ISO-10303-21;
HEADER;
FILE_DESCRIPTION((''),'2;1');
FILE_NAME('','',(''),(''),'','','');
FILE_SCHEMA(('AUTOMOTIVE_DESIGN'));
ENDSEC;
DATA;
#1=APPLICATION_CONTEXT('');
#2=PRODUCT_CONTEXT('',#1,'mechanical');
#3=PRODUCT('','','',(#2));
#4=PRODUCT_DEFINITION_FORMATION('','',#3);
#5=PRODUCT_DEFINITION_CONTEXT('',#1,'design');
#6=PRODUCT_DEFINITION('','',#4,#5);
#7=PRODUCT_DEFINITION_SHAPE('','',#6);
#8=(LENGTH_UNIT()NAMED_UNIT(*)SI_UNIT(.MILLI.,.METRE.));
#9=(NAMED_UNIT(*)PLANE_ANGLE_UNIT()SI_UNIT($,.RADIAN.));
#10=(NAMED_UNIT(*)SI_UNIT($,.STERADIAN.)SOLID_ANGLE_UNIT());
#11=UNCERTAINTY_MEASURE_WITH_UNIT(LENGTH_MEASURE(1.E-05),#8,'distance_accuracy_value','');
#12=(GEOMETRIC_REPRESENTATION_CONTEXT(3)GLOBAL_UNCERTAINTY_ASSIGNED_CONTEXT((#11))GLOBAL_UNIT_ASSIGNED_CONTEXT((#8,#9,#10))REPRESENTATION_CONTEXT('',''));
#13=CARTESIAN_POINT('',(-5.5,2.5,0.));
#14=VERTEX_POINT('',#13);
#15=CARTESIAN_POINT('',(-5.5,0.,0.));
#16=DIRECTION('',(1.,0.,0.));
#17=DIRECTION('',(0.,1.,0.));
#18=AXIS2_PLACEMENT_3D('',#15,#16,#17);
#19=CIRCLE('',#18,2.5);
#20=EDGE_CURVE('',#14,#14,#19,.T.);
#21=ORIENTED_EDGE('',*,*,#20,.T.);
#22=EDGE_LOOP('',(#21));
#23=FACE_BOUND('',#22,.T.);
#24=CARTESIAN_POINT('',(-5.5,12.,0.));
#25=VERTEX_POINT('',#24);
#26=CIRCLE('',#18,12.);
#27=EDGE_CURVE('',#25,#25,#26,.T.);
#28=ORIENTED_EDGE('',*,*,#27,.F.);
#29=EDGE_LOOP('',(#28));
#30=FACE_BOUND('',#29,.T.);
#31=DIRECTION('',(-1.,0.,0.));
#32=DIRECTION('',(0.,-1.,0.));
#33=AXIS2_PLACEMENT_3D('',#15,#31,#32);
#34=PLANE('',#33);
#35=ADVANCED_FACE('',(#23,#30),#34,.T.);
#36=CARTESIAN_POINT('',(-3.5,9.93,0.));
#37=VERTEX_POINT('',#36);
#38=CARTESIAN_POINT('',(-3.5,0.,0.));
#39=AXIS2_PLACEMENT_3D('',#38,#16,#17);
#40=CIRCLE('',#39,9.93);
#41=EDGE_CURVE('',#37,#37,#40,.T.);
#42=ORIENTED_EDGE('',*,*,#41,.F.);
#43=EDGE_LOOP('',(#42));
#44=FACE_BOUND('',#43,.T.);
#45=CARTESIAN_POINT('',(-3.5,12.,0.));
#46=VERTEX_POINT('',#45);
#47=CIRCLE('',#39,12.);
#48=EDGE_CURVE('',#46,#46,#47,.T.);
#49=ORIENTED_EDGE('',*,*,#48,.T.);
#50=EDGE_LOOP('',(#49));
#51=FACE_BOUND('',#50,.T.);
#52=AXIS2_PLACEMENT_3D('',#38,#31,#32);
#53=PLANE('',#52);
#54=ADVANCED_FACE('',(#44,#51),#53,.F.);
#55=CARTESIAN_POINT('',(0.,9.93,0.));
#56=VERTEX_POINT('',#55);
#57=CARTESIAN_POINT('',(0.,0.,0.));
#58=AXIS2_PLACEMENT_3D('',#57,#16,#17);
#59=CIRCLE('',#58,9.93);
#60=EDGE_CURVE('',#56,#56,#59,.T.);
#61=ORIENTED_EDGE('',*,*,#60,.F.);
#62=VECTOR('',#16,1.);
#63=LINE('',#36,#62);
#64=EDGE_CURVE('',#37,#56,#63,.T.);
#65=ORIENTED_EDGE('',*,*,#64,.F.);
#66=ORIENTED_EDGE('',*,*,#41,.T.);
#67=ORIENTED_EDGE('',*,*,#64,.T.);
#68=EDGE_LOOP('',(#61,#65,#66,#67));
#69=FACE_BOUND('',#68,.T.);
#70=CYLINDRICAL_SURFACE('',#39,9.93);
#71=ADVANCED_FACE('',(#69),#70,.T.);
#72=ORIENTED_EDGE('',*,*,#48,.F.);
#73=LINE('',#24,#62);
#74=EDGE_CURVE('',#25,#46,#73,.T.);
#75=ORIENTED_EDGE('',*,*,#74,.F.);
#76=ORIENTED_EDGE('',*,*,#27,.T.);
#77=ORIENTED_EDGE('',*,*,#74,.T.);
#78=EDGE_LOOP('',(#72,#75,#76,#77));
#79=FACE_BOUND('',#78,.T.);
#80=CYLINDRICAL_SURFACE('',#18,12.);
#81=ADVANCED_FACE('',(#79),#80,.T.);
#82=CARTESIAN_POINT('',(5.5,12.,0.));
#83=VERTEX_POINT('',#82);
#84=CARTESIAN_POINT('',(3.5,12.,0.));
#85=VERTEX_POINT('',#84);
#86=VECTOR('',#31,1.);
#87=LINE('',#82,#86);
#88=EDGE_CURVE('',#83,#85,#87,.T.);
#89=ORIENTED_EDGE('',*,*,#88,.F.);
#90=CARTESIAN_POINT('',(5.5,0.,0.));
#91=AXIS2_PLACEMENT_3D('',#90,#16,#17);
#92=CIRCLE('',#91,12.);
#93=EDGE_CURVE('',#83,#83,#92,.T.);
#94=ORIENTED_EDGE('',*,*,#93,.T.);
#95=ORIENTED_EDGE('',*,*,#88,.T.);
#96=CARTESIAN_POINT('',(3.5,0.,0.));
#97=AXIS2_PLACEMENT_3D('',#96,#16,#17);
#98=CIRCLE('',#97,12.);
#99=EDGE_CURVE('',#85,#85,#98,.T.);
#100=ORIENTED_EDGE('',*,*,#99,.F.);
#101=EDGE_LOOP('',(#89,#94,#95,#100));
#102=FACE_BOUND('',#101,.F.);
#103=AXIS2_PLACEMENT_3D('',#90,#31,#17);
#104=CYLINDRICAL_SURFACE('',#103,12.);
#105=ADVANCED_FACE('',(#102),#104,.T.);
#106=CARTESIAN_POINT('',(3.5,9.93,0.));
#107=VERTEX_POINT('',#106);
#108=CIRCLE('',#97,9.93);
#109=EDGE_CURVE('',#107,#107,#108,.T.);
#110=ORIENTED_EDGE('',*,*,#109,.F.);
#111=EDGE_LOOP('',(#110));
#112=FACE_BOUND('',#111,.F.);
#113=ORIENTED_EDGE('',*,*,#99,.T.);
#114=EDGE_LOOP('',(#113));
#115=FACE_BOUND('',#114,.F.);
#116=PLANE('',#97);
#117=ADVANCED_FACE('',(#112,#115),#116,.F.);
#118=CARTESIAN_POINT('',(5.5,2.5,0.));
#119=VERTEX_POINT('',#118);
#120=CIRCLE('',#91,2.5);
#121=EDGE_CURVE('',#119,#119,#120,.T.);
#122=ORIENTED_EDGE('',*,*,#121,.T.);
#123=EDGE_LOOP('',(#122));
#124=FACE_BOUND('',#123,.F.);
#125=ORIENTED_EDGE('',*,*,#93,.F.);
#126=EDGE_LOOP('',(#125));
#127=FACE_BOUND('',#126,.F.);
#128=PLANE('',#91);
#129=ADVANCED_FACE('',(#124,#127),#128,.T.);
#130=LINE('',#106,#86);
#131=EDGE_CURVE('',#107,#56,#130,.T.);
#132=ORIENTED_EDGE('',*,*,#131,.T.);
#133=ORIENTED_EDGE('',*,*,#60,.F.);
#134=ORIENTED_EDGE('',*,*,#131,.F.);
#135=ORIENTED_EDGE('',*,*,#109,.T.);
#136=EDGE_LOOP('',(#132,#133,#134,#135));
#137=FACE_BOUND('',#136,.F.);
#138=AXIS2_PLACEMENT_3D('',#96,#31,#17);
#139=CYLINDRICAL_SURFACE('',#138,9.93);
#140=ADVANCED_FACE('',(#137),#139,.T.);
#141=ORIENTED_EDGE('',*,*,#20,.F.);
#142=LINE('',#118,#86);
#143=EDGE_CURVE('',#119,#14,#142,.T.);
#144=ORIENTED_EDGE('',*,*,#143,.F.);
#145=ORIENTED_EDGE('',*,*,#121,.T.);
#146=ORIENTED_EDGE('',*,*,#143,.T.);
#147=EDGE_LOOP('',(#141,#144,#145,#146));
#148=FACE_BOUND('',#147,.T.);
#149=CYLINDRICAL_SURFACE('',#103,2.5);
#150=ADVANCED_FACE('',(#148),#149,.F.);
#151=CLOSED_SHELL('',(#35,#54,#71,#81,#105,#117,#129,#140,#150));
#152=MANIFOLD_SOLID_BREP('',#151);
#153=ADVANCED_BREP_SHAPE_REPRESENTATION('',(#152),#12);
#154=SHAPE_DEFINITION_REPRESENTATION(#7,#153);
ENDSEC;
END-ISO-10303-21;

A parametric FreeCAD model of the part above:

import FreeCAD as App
import Part
import Sketcher

V = App.Vector
Q = App.Units.Quantity


def add_polygon(sketch, points):
    """Adds a closed chain of lines whose ends are joined by coincident constraints."""
    first, n = sketch.GeometryCount, len(points)
    for a, b in zip(points, points[1:] + points[:1]):
        sketch.addGeometry(Part.LineSegment(App.Vector(*a, 0), App.Vector(*b, 0)), False)
    for i in range(n):
        sketch.addConstraint(Sketcher.Constraint("Coincident", first + i, 2, first + (i + 1) % n, 1))

doc = App.newDocument("Part")
body = doc.addObject("PartDesign::Body", "Body")

# Sketch on XY plane
sketch1 = doc.addObject("Sketcher::SketchObject", "Sketch")
body.addObject(sketch1)
sketch1.AttachmentSupport = (doc.XY_Plane, [""])
sketch1.MapMode = "FlatFace"
add_polygon(sketch1, [(0, 2.5), (5.5, 2.5), (5.5, 12), (3.5, 12), (3.5, 9.9), (0, 9.9)])  # lines 0-5
sketch1.addConstraint([
    Sketcher.Constraint("Horizontal", 0),
    Sketcher.Constraint("Vertical", 1),
    Sketcher.Constraint("Horizontal", 2),
    Sketcher.Constraint("Vertical", 3),
    Sketcher.Constraint("Horizontal", 4),
    Sketcher.Constraint("Vertical", 5),
    Sketcher.Constraint("PointOnObject", 4, 2, -2),
    Sketcher.Constraint("DistanceX", 0, 1, 0, 2, Q("5.5 mm")),
    Sketcher.Constraint("DistanceX", 4, 2, 4, 1, Q("3.5 mm")),
    Sketcher.Constraint("DistanceY", -1, 1, 1, 2, Q("12 mm")),
    Sketcher.Constraint("DistanceY", -1, 1, 0, 2, Q("2.5 mm")),
    Sketcher.Constraint("DistanceY", -1, 1, 3, 2, Q("9.93 mm")),
])
revolution = doc.addObject("PartDesign::Revolution", "Revolution")
body.addObject(revolution)
revolution.Profile = sketch1
revolution.ReferenceAxis = (sketch1, ["H_Axis"])
revolution.Angle = 360
doc.recompute()

mirrored = doc.addObject("PartDesign::Mirrored", "Mirrored")
body.addObject(mirrored)
mirrored.Originals = [revolution]
mirrored.MirrorPlane = (doc.YZ_Plane, [""])
body.Tip = mirrored

doc.recompute()
